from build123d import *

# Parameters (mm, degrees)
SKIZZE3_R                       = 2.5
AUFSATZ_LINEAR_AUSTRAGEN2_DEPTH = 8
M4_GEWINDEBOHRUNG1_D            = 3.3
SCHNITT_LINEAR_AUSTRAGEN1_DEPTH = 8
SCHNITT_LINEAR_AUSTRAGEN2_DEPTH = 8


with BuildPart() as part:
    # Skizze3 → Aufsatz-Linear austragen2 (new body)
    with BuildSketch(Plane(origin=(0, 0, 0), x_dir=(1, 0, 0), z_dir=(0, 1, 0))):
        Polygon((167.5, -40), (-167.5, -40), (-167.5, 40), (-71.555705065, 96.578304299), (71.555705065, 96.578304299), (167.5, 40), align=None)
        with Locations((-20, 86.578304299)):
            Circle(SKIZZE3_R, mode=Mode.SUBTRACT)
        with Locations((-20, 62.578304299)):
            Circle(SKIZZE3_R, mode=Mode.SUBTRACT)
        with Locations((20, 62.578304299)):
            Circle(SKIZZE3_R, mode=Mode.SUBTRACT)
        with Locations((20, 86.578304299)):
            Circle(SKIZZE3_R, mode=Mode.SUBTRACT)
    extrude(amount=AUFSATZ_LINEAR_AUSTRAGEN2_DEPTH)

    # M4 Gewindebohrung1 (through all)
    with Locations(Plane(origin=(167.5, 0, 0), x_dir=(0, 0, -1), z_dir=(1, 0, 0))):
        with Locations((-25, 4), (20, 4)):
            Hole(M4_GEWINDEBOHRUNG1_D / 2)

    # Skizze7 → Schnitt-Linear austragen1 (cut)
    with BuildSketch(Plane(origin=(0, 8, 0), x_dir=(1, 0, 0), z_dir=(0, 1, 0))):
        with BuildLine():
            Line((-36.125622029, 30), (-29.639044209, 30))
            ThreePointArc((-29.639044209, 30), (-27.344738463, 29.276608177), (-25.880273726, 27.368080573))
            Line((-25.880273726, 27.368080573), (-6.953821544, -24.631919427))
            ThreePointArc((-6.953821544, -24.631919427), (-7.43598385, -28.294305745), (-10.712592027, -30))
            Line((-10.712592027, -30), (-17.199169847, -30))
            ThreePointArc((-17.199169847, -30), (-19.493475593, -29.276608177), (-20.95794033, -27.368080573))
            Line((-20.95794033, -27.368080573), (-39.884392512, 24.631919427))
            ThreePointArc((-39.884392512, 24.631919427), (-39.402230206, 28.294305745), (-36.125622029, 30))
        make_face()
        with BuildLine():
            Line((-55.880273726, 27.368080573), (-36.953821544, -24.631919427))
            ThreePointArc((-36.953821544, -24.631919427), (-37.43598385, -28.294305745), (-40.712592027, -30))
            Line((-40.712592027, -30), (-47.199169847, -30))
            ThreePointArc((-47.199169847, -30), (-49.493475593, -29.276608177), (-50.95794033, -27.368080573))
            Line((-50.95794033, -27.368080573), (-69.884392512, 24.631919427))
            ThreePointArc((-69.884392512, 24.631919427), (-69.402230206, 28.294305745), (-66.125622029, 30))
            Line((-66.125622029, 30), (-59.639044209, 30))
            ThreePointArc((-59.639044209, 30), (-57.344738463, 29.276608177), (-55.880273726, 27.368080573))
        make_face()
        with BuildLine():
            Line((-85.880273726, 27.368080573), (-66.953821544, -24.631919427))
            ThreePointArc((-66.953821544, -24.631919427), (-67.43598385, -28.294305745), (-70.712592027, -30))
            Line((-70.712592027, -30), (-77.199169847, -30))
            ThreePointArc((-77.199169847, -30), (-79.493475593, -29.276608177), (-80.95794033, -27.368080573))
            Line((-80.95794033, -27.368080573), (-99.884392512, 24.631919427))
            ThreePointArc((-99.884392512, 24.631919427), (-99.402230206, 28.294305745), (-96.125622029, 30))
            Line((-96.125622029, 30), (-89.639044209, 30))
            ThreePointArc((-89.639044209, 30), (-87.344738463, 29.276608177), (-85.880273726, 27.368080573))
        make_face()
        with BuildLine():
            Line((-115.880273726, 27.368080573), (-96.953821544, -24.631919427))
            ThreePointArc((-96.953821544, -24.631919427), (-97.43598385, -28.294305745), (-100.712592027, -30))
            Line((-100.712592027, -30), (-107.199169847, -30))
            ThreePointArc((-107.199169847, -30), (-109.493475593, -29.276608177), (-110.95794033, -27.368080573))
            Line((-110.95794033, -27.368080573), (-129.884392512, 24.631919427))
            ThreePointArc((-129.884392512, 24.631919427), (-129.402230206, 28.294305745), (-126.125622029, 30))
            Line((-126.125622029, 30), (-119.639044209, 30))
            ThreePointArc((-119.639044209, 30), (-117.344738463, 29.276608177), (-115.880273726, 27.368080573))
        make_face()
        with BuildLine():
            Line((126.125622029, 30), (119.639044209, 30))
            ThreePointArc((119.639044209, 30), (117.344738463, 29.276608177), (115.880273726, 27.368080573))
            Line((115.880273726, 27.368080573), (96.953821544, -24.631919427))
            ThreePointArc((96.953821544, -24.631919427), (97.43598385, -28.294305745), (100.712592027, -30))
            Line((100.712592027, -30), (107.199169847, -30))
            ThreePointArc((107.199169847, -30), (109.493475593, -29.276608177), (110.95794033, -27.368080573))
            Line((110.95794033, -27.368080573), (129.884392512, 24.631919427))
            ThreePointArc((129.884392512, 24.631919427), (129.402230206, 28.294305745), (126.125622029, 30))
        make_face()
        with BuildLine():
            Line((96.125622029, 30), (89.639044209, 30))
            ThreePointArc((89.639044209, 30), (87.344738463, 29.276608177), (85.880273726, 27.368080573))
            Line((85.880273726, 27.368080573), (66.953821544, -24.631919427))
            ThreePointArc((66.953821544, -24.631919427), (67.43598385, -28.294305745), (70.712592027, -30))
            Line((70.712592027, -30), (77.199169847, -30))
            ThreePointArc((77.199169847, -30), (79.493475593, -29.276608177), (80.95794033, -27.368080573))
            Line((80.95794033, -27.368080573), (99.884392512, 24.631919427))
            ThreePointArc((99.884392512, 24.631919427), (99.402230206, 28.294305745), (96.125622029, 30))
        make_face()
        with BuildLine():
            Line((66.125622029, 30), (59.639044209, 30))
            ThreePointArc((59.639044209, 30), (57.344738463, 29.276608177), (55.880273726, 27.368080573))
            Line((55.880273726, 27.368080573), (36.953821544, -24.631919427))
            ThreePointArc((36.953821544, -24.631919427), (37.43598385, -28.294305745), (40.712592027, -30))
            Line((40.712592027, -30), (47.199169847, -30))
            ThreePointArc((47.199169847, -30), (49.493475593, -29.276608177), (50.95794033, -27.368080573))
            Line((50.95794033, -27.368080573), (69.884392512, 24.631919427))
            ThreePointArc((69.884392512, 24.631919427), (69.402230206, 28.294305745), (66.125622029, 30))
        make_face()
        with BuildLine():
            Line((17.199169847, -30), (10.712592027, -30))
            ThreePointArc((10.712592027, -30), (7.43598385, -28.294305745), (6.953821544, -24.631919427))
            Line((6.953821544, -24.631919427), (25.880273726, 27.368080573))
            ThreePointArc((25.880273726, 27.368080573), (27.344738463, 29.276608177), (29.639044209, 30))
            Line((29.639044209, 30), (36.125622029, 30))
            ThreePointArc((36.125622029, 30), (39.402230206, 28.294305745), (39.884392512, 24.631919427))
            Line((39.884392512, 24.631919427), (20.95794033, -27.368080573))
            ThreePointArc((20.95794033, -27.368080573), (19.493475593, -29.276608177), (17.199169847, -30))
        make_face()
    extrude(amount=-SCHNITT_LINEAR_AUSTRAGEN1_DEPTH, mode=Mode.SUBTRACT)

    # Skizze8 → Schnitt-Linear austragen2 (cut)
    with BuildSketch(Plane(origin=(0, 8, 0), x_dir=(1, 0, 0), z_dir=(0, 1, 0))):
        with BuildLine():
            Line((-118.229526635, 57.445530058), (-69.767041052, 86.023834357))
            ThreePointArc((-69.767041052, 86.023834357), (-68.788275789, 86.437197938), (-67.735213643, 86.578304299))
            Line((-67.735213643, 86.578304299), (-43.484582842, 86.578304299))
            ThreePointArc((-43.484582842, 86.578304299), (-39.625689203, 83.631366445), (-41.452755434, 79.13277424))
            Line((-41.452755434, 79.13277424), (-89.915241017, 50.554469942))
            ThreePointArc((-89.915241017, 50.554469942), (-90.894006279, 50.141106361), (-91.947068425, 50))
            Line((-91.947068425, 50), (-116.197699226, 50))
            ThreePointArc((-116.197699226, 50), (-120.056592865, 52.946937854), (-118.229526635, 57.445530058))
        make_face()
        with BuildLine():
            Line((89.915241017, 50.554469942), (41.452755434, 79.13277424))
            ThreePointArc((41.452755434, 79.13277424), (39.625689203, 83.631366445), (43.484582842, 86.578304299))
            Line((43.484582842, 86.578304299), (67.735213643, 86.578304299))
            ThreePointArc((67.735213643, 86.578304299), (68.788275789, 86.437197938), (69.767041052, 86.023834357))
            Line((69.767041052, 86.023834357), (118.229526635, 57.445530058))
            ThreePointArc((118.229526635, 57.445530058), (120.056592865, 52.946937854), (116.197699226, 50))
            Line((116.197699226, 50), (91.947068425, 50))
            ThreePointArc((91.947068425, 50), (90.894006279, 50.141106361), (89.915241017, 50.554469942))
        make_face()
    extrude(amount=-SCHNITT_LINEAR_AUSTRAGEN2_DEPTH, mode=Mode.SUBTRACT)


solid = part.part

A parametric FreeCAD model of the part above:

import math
import FreeCAD as App
import Part
import Sketcher
from FreeCAD import Vector
Q = App.Units.Quantity


def add_polygon(sketch, points):
    """Adds a closed chain of lines whose ends are joined by coincident constraints."""
    first, n = sketch.GeometryCount, len(points)
    for a, b in zip(points, points[1:] + points[:1]):
        sketch.addGeometry(Part.LineSegment(App.Vector(*a, 0), App.Vector(*b, 0)), False)
    for i in range(n):
        sketch.addConstraint(Sketcher.Constraint("Coincident", first + i, 2, first + (i + 1) % n, 1))

doc = App.newDocument("Part")
body = doc.addObject("PartDesign::Body", "Body")

sketch1 = body.newObject("Sketcher::SketchObject", "Sketch")
sketch1.AttachmentSupport = (doc.getObject("XZ_Plane"), [""])
sketch1.MapMode = "FlatFace"
add_polygon(sketch1, [(-167.5, 40), (167.5, 40), (167.5, -40), (71.6, -96.6), (-71.6, -96.6), (-167.5, -40)])
sketch1.addGeometry(Part.Circle(Vector(20, -62.6, 0), Vector(0, 0, 1), 2.5), False)
sketch1.addGeometry(Part.Circle(Vector(-20, -62.6, 0), Vector(0, 0, 1), 2.5), False)
sketch1.addGeometry(Part.Circle(Vector(20, -86.6, 0), Vector(0, 0, 1), 2.5), False)
sketch1.addGeometry(Part.Circle(Vector(-20, -86.6, 0), Vector(0, 0, 1), 2.5), False)
sketch1.addConstraint([
    Sketcher.Constraint("Horizontal", 0),
    Sketcher.Constraint("Vertical", 1),
    Sketcher.Constraint("Horizontal", 3),
    Sketcher.Constraint("Vertical", 5),
    Sketcher.Constraint("Equal", 6, 7),
    Sketcher.Constraint("Equal", 7, 8),
    Sketcher.Constraint("Equal", 8, 9),
    Sketcher.Constraint("Symmetric", 0, 2, 4, 2, -1, 1),
    Sketcher.Constraint("Symmetric", 6, 3, 7, 3, -2),
    Sketcher.Constraint("Symmetric", 8, 3, 9, 3, -2),
    Sketcher.Constraint("Horizontal", 1, 2, 4, 2),
    Sketcher.Constraint("Vertical", 6, 3, 8, 3),
    Sketcher.Constraint("Equal", 2, 4),
    Sketcher.Constraint("Diameter", 6, 5.0),
    Sketcher.Constraint("DistanceX", 0, 1, 0, 2, 335.0),
    Sketcher.Constraint("DistanceY", 1, 2, 1, 1, 80.0),
    Sketcher.Constraint("DistanceX", -1, 1, 6, 3, 20.0),
    Sketcher.Constraint("DistanceY", 8, 3, 6, 3, 24.0),
    Sketcher.Constraint("DistanceY", 2, 2, 8, 3, 10.0),
    Sketcher.Constraint("DistanceX", 3, 2, 3, 1, 143.11141),
    Sketcher.Constraint("Distance", 2, 111.384075),
])
pad1 = body.newObject("PartDesign::Pad", "Pad")
pad1.Profile = sketch1
pad1.Length = 8
pad1.Reversed = True

sketch2 = body.newObject("Sketcher::SketchObject", "Sketch001")
sketch2.AttachmentSupport = (doc.getObject("YZ_Plane"), [""])
sketch2.MapMode = "FlatFace"
sketch2.AttachmentOffset = App.Placement(Vector(0, 0, 167.5), App.Rotation())
sketch2.addGeometry([
    Part.Circle(Vector(4, 25, 0), Vector(0, 0, 1), 1.6),
    Part.Circle(Vector(4, -20, 0), Vector(0, 0, 1), 1.6),
], False)
sketch2.addConstraint([
    Sketcher.Constraint("Equal", 0, 1),
    Sketcher.Constraint("Vertical", 0, 3, 1, 3),
    Sketcher.Constraint("Diameter", 0, 3.3),
    Sketcher.Constraint("DistanceX", -1, 1, 0, 3, 4.0),
    Sketcher.Constraint("DistanceY", -1, 1, 0, 3, 25.0),
    Sketcher.Constraint("DistanceY", 1, 3, -1, 1, 20.0),
])
doc.recompute()
hole = body.newObject("PartDesign::Hole", "Hole")
hole.Profile = sketch2
hole.ThreadType = "None"
hole.Diameter = 3.3
hole.DepthType = "ThroughAll"

sketch3 = body.newObject("Sketcher::SketchObject", "Sketch002")
sketch3.AttachmentSupport = (doc.getObject("XZ_Plane"), [""])
sketch3.MapMode = "FlatFace"
sketch3.AttachmentOffset = App.Placement(Vector(0, 0, -8), App.Rotation())
sketch3.addGeometry([
    Part.LineSegment(Vector(-29.6, -30, 0), Vector(-36.1, -30, 0)),
    Part.ArcOfCircle(Part.Circle(Vector(-36.1, -26, 0), Vector(0, 0, 1), 4), math.radians(160), math.radians(270)),
    Part.LineSegment(Vector(-39.9, -24.6, 0), Vector(-21, 27.4, 0)),
    Part.ArcOfCircle(Part.Circle(Vector(-17.2, 26, 0), Vector(0, 0, 1), 4), math.radians(90), math.radians(160)),
    Part.LineSegment(Vector(-17.2, 30, 0), Vector(-10.7, 30, 0)),
    Part.ArcOfCircle(Part.Circle(Vector(-10.7, 26, 0), Vector(0, 0, 1), 4), math.radians(-20), math.radians(90)),
    Part.LineSegment(Vector(-7, 24.6, 0), Vector(-25.9, -27.4, 0)),
    Part.ArcOfCircle(Part.Circle(Vector(-29.6, -26, 0), Vector(0, 0, 1), 4), math.radians(-90), math.radians(-20)),
    Part.LineSegment(Vector(-37, 24.6, 0), Vector(-55.9, -27.4, 0)),
    Part.ArcOfCircle(Part.Circle(Vector(-59.6, -26, 0), Vector(0, 0, 1), 4), math.radians(-90), math.radians(-20)),
    Part.LineSegment(Vector(-59.6, -30, 0), Vector(-66.1, -30, 0)),
    Part.ArcOfCircle(Part.Circle(Vector(-66.1, -26, 0), Vector(0, 0, 1), 4), math.radians(160), math.radians(270)),
    Part.LineSegment(Vector(-69.9, -24.6, 0), Vector(-51, 27.4, 0)),
    Part.ArcOfCircle(Part.Circle(Vector(-47.2, 26, 0), Vector(0, 0, 1), 4), math.radians(90), math.radians(160)),
    Part.LineSegment(Vector(-47.2, 30, 0), Vector(-40.7, 30, 0)),
    Part.ArcOfCircle(Part.Circle(Vector(-40.7, 26, 0), Vector(0, 0, 1), 4), math.radians(-20), math.radians(90)),
    Part.LineSegment(Vector(-67, 24.6, 0), Vector(-85.9, -27.4, 0)),
    Part.ArcOfCircle(Part.Circle(Vector(-89.6, -26, 0), Vector(0, 0, 1), 4), math.radians(-90), math.radians(-20)),
    Part.LineSegment(Vector(-89.6, -30, 0), Vector(-96.1, -30, 0)),
    Part.ArcOfCircle(Part.Circle(Vector(-96.1, -26, 0), Vector(0, 0, 1), 4), math.radians(160), math.radians(270)),
    Part.LineSegment(Vector(-99.9, -24.6, 0), Vector(-81, 27.4, 0)),
    Part.ArcOfCircle(Part.Circle(Vector(-77.2, 26, 0), Vector(0, 0, 1), 4), math.radians(90), math.radians(160)),
    Part.LineSegment(Vector(-77.2, 30, 0), Vector(-70.7, 30, 0)),
    Part.ArcOfCircle(Part.Circle(Vector(-70.7, 26, 0), Vector(0, 0, 1), 4), math.radians(-20), math.radians(90)),
    Part.LineSegment(Vector(-97, 24.6, 0), Vector(-115.9, -27.4, 0)),
    Part.ArcOfCircle(Part.Circle(Vector(-119.6, -26, 0), Vector(0, 0, 1), 4), math.radians(-90), math.radians(-20)),
    Part.LineSegment(Vector(-119.6, -30, 0), Vector(-126.1, -30, 0)),
    Part.ArcOfCircle(Part.Circle(Vector(-126.1, -26, 0), Vector(0, 0, 1), 4), math.radians(160), math.radians(270)),
    Part.LineSegment(Vector(-129.9, -24.6, 0), Vector(-111, 27.4, 0)),
    Part.ArcOfCircle(Part.Circle(Vector(-107.2, 26, 0), Vector(0, 0, 1), 4), math.radians(90), math.radians(160)),
    Part.LineSegment(Vector(-107.2, 30, 0), Vector(-100.7, 30, 0)),
    Part.ArcOfCircle(Part.Circle(Vector(-100.7, 26, 0), Vector(0, 0, 1), 4), math.radians(-20), math.radians(90)),
    Part.LineSegment(Vector(126.1, -30, 0), Vector(119.6, -30, 0)),
    Part.ArcOfCircle(Part.Circle(Vector(119.6, -26, 0), Vector(0, 0, 1), 4), math.radians(-160), math.radians(-90)),
    Part.LineSegment(Vector(115.9, -27.4, 0), Vector(97, 24.6, 0)),
    Part.ArcOfCircle(Part.Circle(Vector(100.7, 26, 0), Vector(0, 0, 1), 4), math.radians(90), math.radians(200)),
    Part.LineSegment(Vector(100.7, 30, 0), Vector(107.2, 30, 0)),
    Part.ArcOfCircle(Part.Circle(Vector(107.2, 26, 0), Vector(0, 0, 1), 4), math.radians(20), math.radians(90)),
    Part.LineSegment(Vector(111, 27.4, 0), Vector(129.9, -24.6, 0)),
    Part.ArcOfCircle(Part.Circle(Vector(126.1, -26, 0), Vector(0, 0, 1), 4), math.radians(-90), math.radians(20)),
    Part.LineSegment(Vector(96.1, -30, 0), Vector(89.6, -30, 0)),
    Part.ArcOfCircle(Part.Circle(Vector(89.6, -26, 0), Vector(0, 0, 1), 4), math.radians(-160), math.radians(-90)),
    Part.LineSegment(Vector(85.9, -27.4, 0), Vector(67, 24.6, 0)),
    Part.ArcOfCircle(Part.Circle(Vector(70.7, 26, 0), Vector(0, 0, 1), 4), math.radians(90), math.radians(200)),
    Part.LineSegment(Vector(70.7, 30, 0), Vector(77.2, 30, 0)),
    Part.ArcOfCircle(Part.Circle(Vector(77.2, 26, 0), Vector(0, 0, 1), 4), math.radians(20), math.radians(90)),
    Part.LineSegment(Vector(81, 27.4, 0), Vector(99.9, -24.6, 0)),
    Part.ArcOfCircle(Part.Circle(Vector(96.1, -26, 0), Vector(0, 0, 1), 4), math.radians(-90), math.radians(20)),
    Part.LineSegment(Vector(66.1, -30, 0), Vector(59.6, -30, 0)),
    Part.ArcOfCircle(Part.Circle(Vector(59.6, -26, 0), Vector(0, 0, 1), 4), math.radians(-160), math.radians(-90)),
    Part.LineSegment(Vector(55.9, -27.4, 0), Vector(37, 24.6, 0)),
    Part.ArcOfCircle(Part.Circle(Vector(40.7, 26, 0), Vector(0, 0, 1), 4), math.radians(90), math.radians(200)),
    Part.LineSegment(Vector(40.7, 30, 0), Vector(47.2, 30, 0)),
    Part.ArcOfCircle(Part.Circle(Vector(47.2, 26, 0), Vector(0, 0, 1), 4), math.radians(20), math.radians(90)),
    Part.LineSegment(Vector(51, 27.4, 0), Vector(69.9, -24.6, 0)),
    Part.ArcOfCircle(Part.Circle(Vector(66.1, -26, 0), Vector(0, 0, 1), 4), math.radians(-90), math.radians(20)),
    Part.LineSegment(Vector(10.7, 30, 0), Vector(17.2, 30, 0)),
    Part.ArcOfCircle(Part.Circle(Vector(17.2, 26, 0), Vector(0, 0, 1), 4), math.radians(20), math.radians(90)),
    Part.LineSegment(Vector(21, 27.4, 0), Vector(39.9, -24.6, 0)),
    Part.ArcOfCircle(Part.Circle(Vector(36.1, -26, 0), Vector(0, 0, 1), 4), math.radians(-90), math.radians(20)),
    Part.LineSegment(Vector(36.1, -30, 0), Vector(29.6, -30, 0)),
    Part.ArcOfCircle(Part.Circle(Vector(29.6, -26, 0), Vector(0, 0, 1), 4), math.radians(-160), math.radians(-90)),
    Part.LineSegment(Vector(25.9, -27.4, 0), Vector(7, 24.6, 0)),
    Part.ArcOfCircle(Part.Circle(Vector(10.7, 26, 0), Vector(0, 0, 1), 4), math.radians(90), math.radians(200)),
], False)
sketch3.addConstraint([
    Sketcher.Constraint("Tangent", 0, 2, 1, 2),
    Sketcher.Constraint("Tangent", 1, 1, 2, 1),
    Sketcher.Constraint("Tangent", 2, 2, 3, 2),
    Sketcher.Constraint("Tangent", 3, 1, 4, 1),
    Sketcher.Constraint("Tangent", 4, 2, 5, 2),
    Sketcher.Constraint("Tangent", 5, 1, 6, 1),
    Sketcher.Constraint("Tangent", 6, 2, 7, 2),
    Sketcher.Constraint("Tangent", 7, 1, 0, 1),
    Sketcher.Constraint("Tangent", 8, 2, 9, 2),
    Sketcher.Constraint("Tangent", 9, 1, 10, 1),
    Sketcher.Constraint("Tangent", 10, 2, 11, 2),
    Sketcher.Constraint("Tangent", 11, 1, 12, 1),
    Sketcher.Constraint("Tangent", 12, 2, 13, 2),
    Sketcher.Constraint("Tangent", 13, 1, 14, 1),
    Sketcher.Constraint("Tangent", 14, 2, 15, 2),
    Sketcher.Constraint("Tangent", 15, 1, 8, 1),
    Sketcher.Constraint("Tangent", 16, 2, 17, 2),
    Sketcher.Constraint("Tangent", 17, 1, 18, 1),
    Sketcher.Constraint("Tangent", 18, 2, 19, 2),
    Sketcher.Constraint("Tangent", 19, 1, 20, 1),
    Sketcher.Constraint("Tangent", 20, 2, 21, 2),
    Sketcher.Constraint("Tangent", 21, 1, 22, 1),
    Sketcher.Constraint("Tangent", 22, 2, 23, 2),
    Sketcher.Constraint("Tangent", 23, 1, 16, 1),
    Sketcher.Constraint("Tangent", 24, 2, 25, 2),
    Sketcher.Constraint("Tangent", 25, 1, 26, 1),
    Sketcher.Constraint("Tangent", 26, 2, 27, 2),
    Sketcher.Constraint("Tangent", 27, 1, 28, 1),
    Sketcher.Constraint("Tangent", 28, 2, 29, 2),
    Sketcher.Constraint("Tangent", 29, 1, 30, 1),
    Sketcher.Constraint("Tangent", 30, 2, 31, 2),
    Sketcher.Constraint("Tangent", 31, 1, 24, 1),
    Sketcher.Constraint("Tangent", 32, 2, 33, 2),
    Sketcher.Constraint("Tangent", 33, 1, 34, 1),
    Sketcher.Constraint("Tangent", 34, 2, 35, 2),
    Sketcher.Constraint("Tangent", 35, 1, 36, 1),
    Sketcher.Constraint("Tangent", 36, 2, 37, 2),
    Sketcher.Constraint("Tangent", 37, 1, 38, 1),
    Sketcher.Constraint("Tangent", 38, 2, 39, 2),
    Sketcher.Constraint("Tangent", 39, 1, 32, 1),
    Sketcher.Constraint("Tangent", 40, 2, 41, 2),
    Sketcher.Constraint("Tangent", 41, 1, 42, 1),
    Sketcher.Constraint("Tangent", 42, 2, 43, 2),
    Sketcher.Constraint("Tangent", 43, 1, 44, 1),
    Sketcher.Constraint("Tangent", 44, 2, 45, 2),
    Sketcher.Constraint("Tangent", 45, 1, 46, 1),
    Sketcher.Constraint("Tangent", 46, 2, 47, 2),
    Sketcher.Constraint("Tangent", 47, 1, 40, 1),
    Sketcher.Constraint("Tangent", 48, 2, 49, 2),
    Sketcher.Constraint("Tangent", 49, 1, 50, 1),
    Sketcher.Constraint("Tangent", 50, 2, 51, 2),
    Sketcher.Constraint("Tangent", 51, 1, 52, 1),
    Sketcher.Constraint("Tangent", 52, 2, 53, 2),
    Sketcher.Constraint("Tangent", 53, 1, 54, 1),
    Sketcher.Constraint("Tangent", 54, 2, 55, 2),
    Sketcher.Constraint("Tangent", 55, 1, 48, 1),
    Sketcher.Constraint("Tangent", 56, 2, 57, 2),
    Sketcher.Constraint("Tangent", 57, 1, 58, 1),
    Sketcher.Constraint("Tangent", 58, 2, 59, 2),
    Sketcher.Constraint("Tangent", 59, 1, 60, 1),
    Sketcher.Constraint("Tangent", 60, 2, 61, 2),
    Sketcher.Constraint("Tangent", 61, 1, 62, 1),
    Sketcher.Constraint("Tangent", 62, 2, 63, 2),
    Sketcher.Constraint("Tangent", 63, 1, 56, 1),
    Sketcher.Constraint("Horizontal", 0),
    Sketcher.Constraint("Horizontal", 4),
    Sketcher.Constraint("Horizontal", 10),
    Sketcher.Constraint("Horizontal", 14),
    Sketcher.Constraint("Horizontal", 18),
    Sketcher.Constraint("Horizontal", 22),
    Sketcher.Constraint("Horizontal", 26),
    Sketcher.Constraint("Horizontal", 30),
    Sketcher.Constraint("Horizontal", 32),
    Sketcher.Constraint("Horizontal", 36),
    Sketcher.Constraint("Horizontal", 40),
    Sketcher.Constraint("Horizontal", 44),
    Sketcher.Constraint("Horizontal", 48),
    Sketcher.Constraint("Horizontal", 52),
    Sketcher.Constraint("Horizontal", 56),
    Sketcher.Constraint("Horizontal", 60),
    Sketcher.Constraint("Equal", 1, 3),
    Sketcher.Constraint("Equal", 3, 5),
    Sketcher.Constraint("Equal", 5, 7),
    Sketcher.Constraint("Equal", 7, 9),
    Sketcher.Constraint("Equal", 9, 11),
    Sketcher.Constraint("Equal", 11, 13),
    Sketcher.Constraint("Equal", 13, 15),
    Sketcher.Constraint("Equal", 15, 17),
    Sketcher.Constraint("Equal", 17, 19),
    Sketcher.Constraint("Equal", 19, 21),
    Sketcher.Constraint("Equal", 21, 23),
    Sketcher.Constraint("Equal", 23, 25),
    Sketcher.Constraint("Equal", 25, 27),
    Sketcher.Constraint("Equal", 27, 29),
    Sketcher.Constraint("Equal", 29, 31),
    Sketcher.Constraint("Equal", 31, 33),
    Sketcher.Constraint("Equal", 33, 35),
    Sketcher.Constraint("Equal", 35, 37),
    Sketcher.Constraint("Equal", 37, 39),
    Sketcher.Constraint("Equal", 39, 41),
    Sketcher.Constraint("Equal", 41, 43),
    Sketcher.Constraint("Equal", 43, 45),
    Sketcher.Constraint("Equal", 45, 47),
    Sketcher.Constraint("Equal", 47, 49),
    Sketcher.Constraint("Equal", 49, 51),
    Sketcher.Constraint("Equal", 51, 53),
    Sketcher.Constraint("Equal", 53, 55),
    Sketcher.Constraint("Equal", 55, 57),
    Sketcher.Constraint("Equal", 57, 59),
    Sketcher.Constraint("Equal", 59, 61),
    Sketcher.Constraint("Equal", 61, 63),
    Sketcher.Constraint("Symmetric", 25, 3, 33, 3, -2),
    Sketcher.Constraint("Symmetric", 31, 3, 35, 3, -2),
    Sketcher.Constraint("Symmetric", 17, 3, 41, 3, -2),
    Sketcher.Constraint("Symmetric", 23, 3, 43, 3, -2),
    Sketcher.Constraint("Symmetric", 9, 3, 49, 3, -2),
    Sketcher.Constraint("Symmetric", 15, 3, 51, 3, -2),
    Sketcher.Constraint("Symmetric", 3, 3, 57, 3, -2),
    Sketcher.Constraint("Symmetric", 1, 3, 59, 3, -2),
    Sketcher.Constraint("Symmetric", 28, 2, 37, 1, -2),
    Sketcher.Constraint("Symmetric", 20, 2, 45, 1, -2),
    Sketcher.Constraint("Symmetric", 12, 2, 53, 1, -2),
    Sketcher.Constraint("Symmetric", 6, 2, 61, 1, -2),
    Sketcher.Constraint("Parallel", 2, 6),
    Sketcher.Constraint("Parallel", 6, 8),
    Sketcher.Constraint("Parallel", 8, 12),
    Sketcher.Constraint("Parallel", 12, 16),
    Sketcher.Constraint("Parallel", 16, 20),
    Sketcher.Constraint("Parallel", 20, 24),
    Sketcher.Constraint("Parallel", 24, 28),
    Sketcher.Constraint("Horizontal", 7, 3, 9, 3),
    Sketcher.Constraint("Horizontal", 5, 3, 13, 3),
    Sketcher.Constraint("Horizontal", 11, 3, 17, 3),
    Sketcher.Constraint("Horizontal", 15, 3, 21, 3),
    Sketcher.Constraint("Horizontal", 19, 3, 25, 3),
    Sketcher.Constraint("Horizontal", 23, 3, 29, 3),
    Sketcher.Constraint("Equal", 4, 10),
    Sketcher.Constraint("Equal", 14, 18),
    Sketcher.Constraint("Equal", 22, 26),
    Sketcher.Constraint("Radius", 1, 4.0),
    Sketcher.Constraint("Angle", 2, Q("70 deg")),
    Sketcher.Constraint("DistanceY", 1, 3, -1, 1, 26.0),
    Sketcher.Constraint("DistanceY", -1, 1, 3, 3, 26.0),
    Sketcher.Constraint("DistanceX", 0, 2, 0, 1, 6.486578),
    Sketcher.Constraint("DistanceX", 3, 3, -1, 1, 17.19917),
    Sketcher.Constraint("DistanceX", 13, 3, -1, 1, 47.19917),
    Sketcher.Constraint("DistanceX", 21, 3, -1, 1, 77.19917),
    Sketcher.Constraint("DistanceX", 29, 3, -1, 1, 107.19917),
])
pocket1 = body.newObject("PartDesign::Pocket", "Pocket")
pocket1.Profile = sketch3
pocket1.Length = 8
pocket1.Reversed = True

sketch4 = body.newObject("Sketcher::SketchObject", "Sketch003")
sketch4.AttachmentSupport = (doc.getObject("XZ_Plane"), [""])
sketch4.MapMode = "FlatFace"
sketch4.AttachmentOffset = App.Placement(Vector(0, 0, -8), App.Rotation())
sketch4.addGeometry([
    Part.LineSegment(Vector(-69.8, -86, 0), Vector(-118.2, -57.4, 0)),
    Part.ArcOfCircle(Part.Circle(Vector(-116.2, -54, 0), Vector(0, 0, 1), 4), math.radians(90), math.radians(239)),
    Part.LineSegment(Vector(-116.2, -50, 0), Vector(-91.9, -50, 0)),
    Part.ArcOfCircle(Part.Circle(Vector(-91.9, -54, 0), Vector(0, 0, 1), 4), math.radians(59), math.radians(90)),
    Part.LineSegment(Vector(-89.9, -50.6, 0), Vector(-41.5, -79.1, 0)),
    Part.ArcOfCircle(Part.Circle(Vector(-43.5, -82.6, 0), Vector(0, 0, 1), 4), math.radians(-90), math.radians(59)),
    Part.LineSegment(Vector(-43.5, -86.6, 0), Vector(-67.7, -86.6, 0)),
    Part.ArcOfCircle(Part.Circle(Vector(-67.7, -82.6, 0), Vector(0, 0, 1), 4), math.radians(-121), math.radians(-90)),
    Part.LineSegment(Vector(41.5, -79.1, 0), Vector(89.9, -50.6, 0)),
    Part.ArcOfCircle(Part.Circle(Vector(91.9, -54, 0), Vector(0, 0, 1), 4), math.radians(90), math.radians(121)),
    Part.LineSegment(Vector(91.9, -50, 0), Vector(116.2, -50, 0)),
    Part.ArcOfCircle(Part.Circle(Vector(116.2, -54, 0), Vector(0, 0, 1), 4), math.radians(-59), math.radians(90)),
    Part.LineSegment(Vector(118.2, -57.4, 0), Vector(69.8, -86, 0)),
    Part.ArcOfCircle(Part.Circle(Vector(67.7, -82.6, 0), Vector(0, 0, 1), 4), math.radians(-90), math.radians(-59)),
    Part.LineSegment(Vector(67.7, -86.6, 0), Vector(43.5, -86.6, 0)),
    Part.ArcOfCircle(Part.Circle(Vector(43.5, -82.6, 0), Vector(0, 0, 1), 4), math.radians(121), math.radians(270)),
], False)
sketch4.addConstraint([
    Sketcher.Constraint("Tangent", 0, 2, 1, 2),
    Sketcher.Constraint("Tangent", 1, 1, 2, 1),
    Sketcher.Constraint("Tangent", 2, 2, 3, 2),
    Sketcher.Constraint("Tangent", 3, 1, 4, 1),
    Sketcher.Constraint("Tangent", 4, 2, 5, 2),
    Sketcher.Constraint("Tangent", 5, 1, 6, 1),
    Sketcher.Constraint("Tangent", 6, 2, 7, 2),
    Sketcher.Constraint("Tangent", 7, 1, 0, 1),
    Sketcher.Constraint("Tangent", 8, 2, 9, 2),
    Sketcher.Constraint("Tangent", 9, 1, 10, 1),
    Sketcher.Constraint("Tangent", 10, 2, 11, 2),
    Sketcher.Constraint("Tangent", 11, 1, 12, 1),
    Sketcher.Constraint("Tangent", 12, 2, 13, 2),
    Sketcher.Constraint("Tangent", 13, 1, 14, 1),
    Sketcher.Constraint("Tangent", 14, 2, 15, 2),
    Sketcher.Constraint("Tangent", 15, 1, 8, 1),
    Sketcher.Constraint("Horizontal", 2),
    Sketcher.Constraint("Horizontal", 6),
    Sketcher.Constraint("Horizontal", 10),
    Sketcher.Constraint("Horizontal", 14),
    Sketcher.Constraint("Equal", 1, 3),
    Sketcher.Constraint("Equal", 3, 5),
    Sketcher.Constraint("Equal", 5, 7),
    Sketcher.Constraint("Equal", 7, 9),
    Sketcher.Constraint("Equal", 9, 11),
    Sketcher.Constraint("Equal", 11, 13),
    Sketcher.Constraint("Equal", 13, 15),
    Sketcher.Constraint("Symmetric", 3, 3, 9, 3, -2),
    Sketcher.Constraint("Symmetric", 7, 3, 13, 3, -2),
    Sketcher.Constraint("Parallel", 0, 4),
    Sketcher.Constraint("Parallel", 8, 12),
    Sketcher.Constraint("Horizontal", 3, 1, 8, 2),
    Sketcher.Constraint("Radius", 1, 4.0),
    Sketcher.Constraint("DistanceY", 1, 3, -1, 1, 54.0),
    Sketcher.Constraint("DistanceX", 2, 1, 2, 2, 24.250631),
    Sketcher.Constraint("DistanceX", 1, 3, -1, 1, 116.197699),
    Sketcher.Constraint("DistanceX", 12, 2, 8, 2, 20.1482),
    Sketcher.Constraint("DistanceY", 0, 2, -1, 1, 57.44553),
])
pocket2 = body.newObject("PartDesign::Pocket", "Pocket001")
pocket2.Profile = sketch4
pocket2.Length = 8
pocket2.Reversed = True

doc.recompute()
